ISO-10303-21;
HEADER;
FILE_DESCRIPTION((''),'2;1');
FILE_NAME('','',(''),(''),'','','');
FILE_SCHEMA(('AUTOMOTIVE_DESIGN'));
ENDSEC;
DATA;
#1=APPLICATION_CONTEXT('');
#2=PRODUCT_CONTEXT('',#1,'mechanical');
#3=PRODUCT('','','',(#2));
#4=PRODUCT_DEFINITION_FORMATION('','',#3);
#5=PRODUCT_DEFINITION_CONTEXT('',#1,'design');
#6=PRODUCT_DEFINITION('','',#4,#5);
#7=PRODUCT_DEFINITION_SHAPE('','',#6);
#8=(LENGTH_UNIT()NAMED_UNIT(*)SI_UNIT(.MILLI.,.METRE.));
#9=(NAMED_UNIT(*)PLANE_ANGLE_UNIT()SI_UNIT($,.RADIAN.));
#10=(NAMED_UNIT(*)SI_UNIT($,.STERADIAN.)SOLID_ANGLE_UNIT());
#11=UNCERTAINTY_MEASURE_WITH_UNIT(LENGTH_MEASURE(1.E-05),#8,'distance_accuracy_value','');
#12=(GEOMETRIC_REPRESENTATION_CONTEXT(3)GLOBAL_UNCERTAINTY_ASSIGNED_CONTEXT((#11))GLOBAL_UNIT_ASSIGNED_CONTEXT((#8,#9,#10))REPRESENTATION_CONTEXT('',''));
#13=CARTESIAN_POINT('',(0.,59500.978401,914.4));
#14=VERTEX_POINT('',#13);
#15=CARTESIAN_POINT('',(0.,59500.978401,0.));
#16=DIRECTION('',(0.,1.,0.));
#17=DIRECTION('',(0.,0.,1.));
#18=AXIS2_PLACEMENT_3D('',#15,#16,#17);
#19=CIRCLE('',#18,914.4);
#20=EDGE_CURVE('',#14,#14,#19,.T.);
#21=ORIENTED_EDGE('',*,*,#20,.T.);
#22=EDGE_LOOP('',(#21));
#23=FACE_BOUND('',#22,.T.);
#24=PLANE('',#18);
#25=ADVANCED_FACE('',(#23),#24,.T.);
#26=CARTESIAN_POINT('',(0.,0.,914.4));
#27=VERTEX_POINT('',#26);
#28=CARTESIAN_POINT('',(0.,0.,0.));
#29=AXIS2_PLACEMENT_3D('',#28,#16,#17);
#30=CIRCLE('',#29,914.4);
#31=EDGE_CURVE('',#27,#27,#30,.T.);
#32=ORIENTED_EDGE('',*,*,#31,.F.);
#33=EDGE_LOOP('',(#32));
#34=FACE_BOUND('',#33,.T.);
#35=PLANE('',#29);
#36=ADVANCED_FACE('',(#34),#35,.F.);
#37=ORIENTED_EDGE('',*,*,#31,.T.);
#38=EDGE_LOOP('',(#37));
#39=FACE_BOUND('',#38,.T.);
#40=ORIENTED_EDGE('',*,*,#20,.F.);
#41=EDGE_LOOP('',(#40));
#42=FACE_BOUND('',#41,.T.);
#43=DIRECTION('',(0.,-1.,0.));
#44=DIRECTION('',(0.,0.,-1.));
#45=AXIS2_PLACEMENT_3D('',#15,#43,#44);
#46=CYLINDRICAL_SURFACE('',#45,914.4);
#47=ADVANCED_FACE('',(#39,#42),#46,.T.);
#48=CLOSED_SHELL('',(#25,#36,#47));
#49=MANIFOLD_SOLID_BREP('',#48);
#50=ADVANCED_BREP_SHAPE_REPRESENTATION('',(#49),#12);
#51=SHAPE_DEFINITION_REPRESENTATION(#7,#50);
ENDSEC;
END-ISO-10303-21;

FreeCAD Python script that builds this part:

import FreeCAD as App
import Part
import Sketcher
from FreeCAD import Vector
Q = App.Units.Quantity

doc = App.newDocument("Part")
params = doc.addObject("Spreadsheet::Sheet", "Params")
for row, (alias, value) in enumerate([
    ("sketch1_diameter", "72 in"),
    ("pad1_length", "59500.978401 mm"),
], start=1):
    params.set(f"A{row}", alias)
    params.set(f"B{row}", "=" + value)
    params.setAlias(f"B{row}", alias)

body = doc.addObject("PartDesign::Body", "Body")

# Sketch on XZ plane
sketch1 = body.newObject("Sketcher::SketchObject", "Sketch")
sketch1.AttachmentSupport = (doc.getObject("XZ_Plane"), [""])
sketch1.MapMode = "FlatFace"
sketch1.addGeometry(Part.Circle(Vector(0, 0, 0), Vector(0, 0, 1), 914), False)
sketch1.addConstraint([
    Sketcher.Constraint("Coincident", 0, 3, -1, 1),
    Sketcher.Constraint("Diameter", 0, Q("72 in")),
])
sketch1.setExpression("Constraints[1]", "Params.sketch1_diameter")
pad1 = body.newObject("PartDesign::Pad", "Pad")
pad1.Profile = sketch1
pad1.setExpression("Length", "Params.pad1_length")
pad1.Reversed = True

doc.recompute()
